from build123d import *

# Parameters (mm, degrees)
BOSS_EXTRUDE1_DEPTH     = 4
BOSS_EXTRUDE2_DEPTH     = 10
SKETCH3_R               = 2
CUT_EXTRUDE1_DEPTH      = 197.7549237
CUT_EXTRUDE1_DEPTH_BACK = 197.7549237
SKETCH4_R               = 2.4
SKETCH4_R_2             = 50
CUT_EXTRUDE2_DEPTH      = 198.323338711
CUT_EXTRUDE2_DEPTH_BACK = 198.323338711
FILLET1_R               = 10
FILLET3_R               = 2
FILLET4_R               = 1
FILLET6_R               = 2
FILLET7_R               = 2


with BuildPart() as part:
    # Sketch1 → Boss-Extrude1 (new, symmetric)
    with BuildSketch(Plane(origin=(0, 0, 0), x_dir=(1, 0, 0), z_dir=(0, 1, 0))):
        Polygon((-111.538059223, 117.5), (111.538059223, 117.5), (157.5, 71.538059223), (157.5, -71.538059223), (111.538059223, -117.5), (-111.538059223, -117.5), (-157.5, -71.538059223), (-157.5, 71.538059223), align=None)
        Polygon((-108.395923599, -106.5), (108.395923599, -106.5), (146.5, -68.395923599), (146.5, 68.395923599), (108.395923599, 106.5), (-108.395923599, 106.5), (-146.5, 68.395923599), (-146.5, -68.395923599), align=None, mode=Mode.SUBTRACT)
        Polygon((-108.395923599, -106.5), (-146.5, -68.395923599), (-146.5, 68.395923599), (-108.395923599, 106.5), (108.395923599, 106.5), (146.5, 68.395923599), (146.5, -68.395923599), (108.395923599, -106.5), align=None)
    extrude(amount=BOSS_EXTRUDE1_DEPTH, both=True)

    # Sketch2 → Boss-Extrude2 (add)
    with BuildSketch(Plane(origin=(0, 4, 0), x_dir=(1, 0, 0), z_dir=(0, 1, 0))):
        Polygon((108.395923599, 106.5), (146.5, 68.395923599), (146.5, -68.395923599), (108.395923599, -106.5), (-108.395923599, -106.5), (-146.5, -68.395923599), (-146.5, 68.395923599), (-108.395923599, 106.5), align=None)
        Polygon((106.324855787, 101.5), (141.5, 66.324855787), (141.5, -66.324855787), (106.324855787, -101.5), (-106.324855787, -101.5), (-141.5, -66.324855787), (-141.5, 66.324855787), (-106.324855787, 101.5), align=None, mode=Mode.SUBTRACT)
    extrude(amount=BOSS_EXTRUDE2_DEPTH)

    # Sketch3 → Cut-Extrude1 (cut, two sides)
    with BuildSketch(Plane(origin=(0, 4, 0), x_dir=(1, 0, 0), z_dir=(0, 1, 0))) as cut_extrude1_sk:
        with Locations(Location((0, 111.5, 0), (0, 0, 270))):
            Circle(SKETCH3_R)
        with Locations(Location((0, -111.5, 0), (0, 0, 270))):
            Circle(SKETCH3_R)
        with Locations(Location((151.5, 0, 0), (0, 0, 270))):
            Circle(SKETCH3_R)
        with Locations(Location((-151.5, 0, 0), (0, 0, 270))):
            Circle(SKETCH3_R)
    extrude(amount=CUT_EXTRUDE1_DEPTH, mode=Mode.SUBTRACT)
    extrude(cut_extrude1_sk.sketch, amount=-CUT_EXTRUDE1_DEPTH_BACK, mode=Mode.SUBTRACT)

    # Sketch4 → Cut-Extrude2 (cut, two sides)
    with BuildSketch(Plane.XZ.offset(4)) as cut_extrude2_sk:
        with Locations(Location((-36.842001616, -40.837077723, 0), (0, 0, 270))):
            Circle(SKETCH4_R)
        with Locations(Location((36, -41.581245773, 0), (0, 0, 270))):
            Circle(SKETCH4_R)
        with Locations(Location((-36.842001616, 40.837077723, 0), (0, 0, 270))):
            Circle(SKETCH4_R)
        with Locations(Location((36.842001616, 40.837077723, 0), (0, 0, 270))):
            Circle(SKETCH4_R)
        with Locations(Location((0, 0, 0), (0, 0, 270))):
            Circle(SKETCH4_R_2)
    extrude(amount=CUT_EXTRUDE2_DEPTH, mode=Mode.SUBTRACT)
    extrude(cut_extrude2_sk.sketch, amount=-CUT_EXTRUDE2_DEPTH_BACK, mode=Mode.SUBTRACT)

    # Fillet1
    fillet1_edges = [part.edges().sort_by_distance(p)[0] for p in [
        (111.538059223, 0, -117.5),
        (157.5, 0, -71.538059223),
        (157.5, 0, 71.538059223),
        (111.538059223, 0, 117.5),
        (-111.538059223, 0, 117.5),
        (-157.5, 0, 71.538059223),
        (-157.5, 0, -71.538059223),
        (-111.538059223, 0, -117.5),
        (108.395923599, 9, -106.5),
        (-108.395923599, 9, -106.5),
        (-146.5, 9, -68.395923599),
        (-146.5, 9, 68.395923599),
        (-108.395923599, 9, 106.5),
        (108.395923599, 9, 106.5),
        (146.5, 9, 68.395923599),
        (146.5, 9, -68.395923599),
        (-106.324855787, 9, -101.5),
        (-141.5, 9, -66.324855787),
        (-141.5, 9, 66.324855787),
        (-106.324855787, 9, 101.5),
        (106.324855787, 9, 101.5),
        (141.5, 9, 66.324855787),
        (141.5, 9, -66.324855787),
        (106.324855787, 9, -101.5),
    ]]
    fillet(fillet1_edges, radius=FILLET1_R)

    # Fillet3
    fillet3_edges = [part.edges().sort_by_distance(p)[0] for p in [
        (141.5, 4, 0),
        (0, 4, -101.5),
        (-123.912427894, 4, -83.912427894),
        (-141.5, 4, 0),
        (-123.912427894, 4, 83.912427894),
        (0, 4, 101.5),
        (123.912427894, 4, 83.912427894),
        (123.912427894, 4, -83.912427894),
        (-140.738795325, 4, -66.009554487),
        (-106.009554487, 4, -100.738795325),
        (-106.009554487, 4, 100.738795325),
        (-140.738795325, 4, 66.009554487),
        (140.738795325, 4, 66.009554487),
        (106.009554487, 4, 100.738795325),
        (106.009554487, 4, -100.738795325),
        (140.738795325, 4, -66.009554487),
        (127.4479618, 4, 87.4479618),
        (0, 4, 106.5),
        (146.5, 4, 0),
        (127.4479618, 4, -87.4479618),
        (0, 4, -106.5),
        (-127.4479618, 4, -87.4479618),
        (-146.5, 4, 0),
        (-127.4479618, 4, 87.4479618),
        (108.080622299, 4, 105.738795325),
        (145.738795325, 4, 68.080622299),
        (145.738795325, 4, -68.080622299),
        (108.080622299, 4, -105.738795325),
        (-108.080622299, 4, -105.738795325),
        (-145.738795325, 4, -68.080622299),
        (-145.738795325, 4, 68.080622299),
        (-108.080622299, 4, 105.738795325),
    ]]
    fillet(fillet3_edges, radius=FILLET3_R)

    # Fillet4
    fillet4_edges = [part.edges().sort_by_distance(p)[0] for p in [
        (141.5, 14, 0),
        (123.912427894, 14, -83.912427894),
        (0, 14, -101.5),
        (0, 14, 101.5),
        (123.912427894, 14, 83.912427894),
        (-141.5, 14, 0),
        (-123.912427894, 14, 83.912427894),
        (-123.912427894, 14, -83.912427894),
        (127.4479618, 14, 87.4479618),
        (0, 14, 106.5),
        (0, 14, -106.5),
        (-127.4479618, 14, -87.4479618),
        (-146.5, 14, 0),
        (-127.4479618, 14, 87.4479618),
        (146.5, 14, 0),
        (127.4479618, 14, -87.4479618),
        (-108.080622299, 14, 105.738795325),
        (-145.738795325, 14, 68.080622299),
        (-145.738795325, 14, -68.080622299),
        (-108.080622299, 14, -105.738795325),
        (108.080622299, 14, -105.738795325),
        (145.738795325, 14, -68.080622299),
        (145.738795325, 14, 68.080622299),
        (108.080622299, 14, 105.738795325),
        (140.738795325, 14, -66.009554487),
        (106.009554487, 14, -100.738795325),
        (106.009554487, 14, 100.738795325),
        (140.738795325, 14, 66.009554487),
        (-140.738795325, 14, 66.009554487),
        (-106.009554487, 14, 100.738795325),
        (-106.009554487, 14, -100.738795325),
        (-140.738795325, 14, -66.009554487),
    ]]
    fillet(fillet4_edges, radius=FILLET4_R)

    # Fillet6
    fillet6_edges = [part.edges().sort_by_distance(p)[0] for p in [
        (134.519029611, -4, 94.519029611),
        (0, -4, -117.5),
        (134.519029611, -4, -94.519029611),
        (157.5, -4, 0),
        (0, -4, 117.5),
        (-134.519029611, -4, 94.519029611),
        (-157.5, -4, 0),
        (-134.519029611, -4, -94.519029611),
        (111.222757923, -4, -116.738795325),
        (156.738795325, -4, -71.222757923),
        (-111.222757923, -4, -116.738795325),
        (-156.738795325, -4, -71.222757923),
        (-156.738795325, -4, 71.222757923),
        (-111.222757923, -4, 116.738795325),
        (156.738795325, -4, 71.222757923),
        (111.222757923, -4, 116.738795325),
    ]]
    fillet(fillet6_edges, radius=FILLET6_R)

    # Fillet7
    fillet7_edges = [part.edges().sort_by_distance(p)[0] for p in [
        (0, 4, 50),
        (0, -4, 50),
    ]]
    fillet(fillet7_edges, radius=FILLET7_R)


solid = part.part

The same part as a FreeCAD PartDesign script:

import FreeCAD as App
import Part
import Sketcher
from FreeCAD import Vector
Q = App.Units.Quantity


def edges_at(feature, points):
    """Names of the edges that pass closest to the given points."""
    edges = feature.Shape.Edges
    near = lambda p: min(range(len(edges)), key=lambda i: edges[i].distToShape(Part.Vertex(*p))[0])
    return sorted({f"Edge{near(p) + 1}" for p in points})


def add_polygon(sketch, points):
    """Adds a closed chain of lines whose ends are joined by coincident constraints."""
    first, n = sketch.GeometryCount, len(points)
    for a, b in zip(points, points[1:] + points[:1]):
        sketch.addGeometry(Part.LineSegment(App.Vector(*a, 0), App.Vector(*b, 0)), False)
    for i in range(n):
        sketch.addConstraint(Sketcher.Constraint("Coincident", first + i, 2, first + (i + 1) % n, 1))

doc = App.newDocument("Part")
body = doc.addObject("PartDesign::Body", "Body")

# Sketch on XZ plane
sketch1 = doc.addObject("Sketcher::SketchObject", "Sketch")
body.addObject(sketch1)
sketch1.AttachmentSupport = (doc.XZ_Plane, [""])
sketch1.MapMode = "FlatFace"
add_polygon(sketch1, [(112, -118), (-112, -118), (-158, -72), (-158, 72), (-112, 118), (112, 118), (158, 72), (158, -72)])  # lines 0-7
sketch1.addConstraint([
    Sketcher.Constraint("Horizontal", 0),
    Sketcher.Constraint("Vertical", 2),
    Sketcher.Constraint("Horizontal", 4),
    Sketcher.Constraint("Vertical", 6),
    Sketcher.Constraint("Symmetric", 0, 2, 4, 2, -1, 1),
    Sketcher.Constraint("Symmetric", 1, 2, 5, 2, -1, 1),
    Sketcher.Constraint("Perpendicular", 1, 3),
    Sketcher.Constraint("Perpendicular", 5, 7),
    Sketcher.Constraint("Horizontal", 2, 2, 5, 2),
    Sketcher.Constraint("Horizontal", 1, 2, 6, 2),
    Sketcher.Constraint("Vertical", 0, 2, 3, 2),
    Sketcher.Constraint("Distance", 1, Q("65 mm")),
    Sketcher.Constraint("DistanceY", 0, 2, 3, 2, Q("235 mm")),
    Sketcher.Constraint("DistanceX", 2, 2, 5, 2, Q("315 mm")),
])
pad1 = doc.addObject("PartDesign::Pad", "Pad")
body.addObject(pad1)
pad1.Profile = sketch1
pad1.Length = 8
pad1.Midplane = True

# Sketch on XZ plane
sketch2 = doc.addObject("Sketcher::SketchObject", "Sketch001")
body.addObject(sketch2)
sketch2.AttachmentSupport = (doc.XZ_Plane, [""])
sketch2.MapMode = "FlatFace"
sketch2.AttachmentOffset = App.Placement(Vector(0, 0, -4), App.Rotation())
add_polygon(sketch2, [(146, -68), (108, -106), (-108, -106), (-146, -68), (-146, 68), (-108, 106), (108, 106), (146, 68)])  # lines 0-7
add_polygon(sketch2, [(106, -102), (142, -66), (142, 66), (106, 102), (-106, 102), (-142, 66), (-142, -66), (-106, -102)])  # lines 8-15
sketch2.addConstraint([
    Sketcher.Constraint("Horizontal", 1),
    Sketcher.Constraint("Vertical", 3),
    Sketcher.Constraint("Horizontal", 5),
    Sketcher.Constraint("Vertical", 7),
    Sketcher.Constraint("Vertical", 9),
    Sketcher.Constraint("Horizontal", 11),
    Sketcher.Constraint("Vertical", 13),
    Sketcher.Constraint("Horizontal", 15),
    Sketcher.Constraint("Symmetric", 0, 2, 4, 2, -1, 1),
    Sketcher.Constraint("Symmetric", 2, 2, 6, 2, -1, 1),
    Sketcher.Constraint("Symmetric", 8, 2, 12, 2, -1, 1),
    Sketcher.Constraint("Symmetric", 10, 2, 14, 2, -1, 1),
    Sketcher.Constraint("Perpendicular", 0, 2),
    Sketcher.Constraint("Perpendicular", 2, 4),
    Sketcher.Constraint("Perpendicular", 4, 6),
    Sketcher.Constraint("Perpendicular", 6, 8),
    Sketcher.Constraint("Perpendicular", 8, 10),
    Sketcher.Constraint("Perpendicular", 10, 12),
    Sketcher.Constraint("Perpendicular", 12, 14),
    Sketcher.Constraint("Horizontal", 3, 2, 6, 2),
    Sketcher.Constraint("Horizontal", 9, 2, 12, 2),
    Sketcher.Constraint("Vertical", 1, 2, 4, 2),
    Sketcher.Constraint("DistanceY", 1, 2, 4, 2, Q("213 mm")),
    Sketcher.Constraint("DistanceX", 3, 2, 6, 2, Q("293 mm")),
    Sketcher.Constraint("DistanceX", 8, 2, 7, 2, Q("5 mm")),
    Sketcher.Constraint("DistanceY", 10, 2, 5, 2, Q("5 mm")),
    Sketcher.Constraint("Distance", 0, Q("53.887302 mm")),
    Sketcher.Constraint("DistanceX", 11, 2, 11, 1, Q("212.649712 mm")),
])
pad2 = doc.addObject("PartDesign::Pad", "Pad001")
body.addObject(pad2)
pad2.Profile = sketch2
pad2.Length = 10
pad2.Reversed = True

# Sketch on XZ plane
sketch3 = doc.addObject("Sketcher::SketchObject", "Sketch002")
body.addObject(sketch3)
sketch3.AttachmentSupport = (doc.XZ_Plane, [""])
sketch3.MapMode = "FlatFace"
sketch3.AttachmentOffset = App.Placement(Vector(0, 0, -4), App.Rotation())
sketch3.addGeometry([
    Part.Circle(Vector(0, -111.5, 0), Vector(0, 0, 1), 2),
    Part.Circle(Vector(0, 111.5, 0), Vector(0, 0, 1), 2),
    Part.Circle(Vector(151.5, 0, 0), Vector(0, 0, 1), 2),
    Part.Circle(Vector(-151.5, 0, 0), Vector(0, 0, 1), 2),
], False)
sketch3.addConstraint([
    Sketcher.Constraint("Equal", 0, 1),
    Sketcher.Constraint("Equal", 1, 2),
    Sketcher.Constraint("Equal", 2, 3),
    Sketcher.Constraint("Symmetric", 0, 3, 1, 3, -1, 1),
    Sketcher.Constraint("Symmetric", 2, 3, 3, 3, -1, 1),
    Sketcher.Constraint("PointOnObject", 0, 3, -2),
    Sketcher.Constraint("PointOnObject", 2, 3, -1),
    Sketcher.Constraint("Diameter", 0, Q("4 mm")),
    Sketcher.Constraint("DistanceY", 0, 3, 1, 3, Q("223 mm")),
    Sketcher.Constraint("DistanceX", 3, 3, 2, 3, Q("303 mm")),
])
pocket1 = doc.addObject("PartDesign::Pocket", "Pocket")
body.addObject(pocket1)
pocket1.Profile = sketch3
pocket1.Type = "ThroughAll"
pocket1.Midplane = True

# Sketch on XZ plane
sketch4 = doc.addObject("Sketcher::SketchObject", "Sketch003")
body.addObject(sketch4)
sketch4.AttachmentSupport = (doc.XZ_Plane, [""])
sketch4.MapMode = "FlatFace"
sketch4.AttachmentOffset = App.Placement(Vector(0, 0, 4), App.Rotation())
sketch4.addGeometry([
    Part.Circle(Vector(-36.8, -40.8, 0), Vector(0, 0, 1), 2.4),  # 0
    Part.Circle(Vector(36, -41.6, 0), Vector(0, 0, 1), 2.4),  # 1
    Part.Circle(Vector(-36.8, 40.8, 0), Vector(0, 0, 1), 2.4),  # 2
    Part.Circle(Vector(36.8, 40.8, 0), Vector(0, 0, 1), 2.4),  # 3
    Part.Circle(Vector(0, 0, 0), Vector(0, 0, 1), 50),  # 4
], False)
sketch4.addConstraint([
    Sketcher.Constraint("Coincident", 4, 3, -1, 1),
    Sketcher.Constraint("Equal", 0, 1),
    Sketcher.Constraint("Equal", 1, 2),
    Sketcher.Constraint("Equal", 2, 3),
    Sketcher.Constraint("Symmetric", 0, 3, 3, 3, -1, 1),
    Sketcher.Constraint("Symmetric", 2, 3, 3, 3, -2),
    Sketcher.Constraint("Diameter", 4, Q("100 mm")),
    Sketcher.Constraint("Diameter", 0, Q("4.8 mm")),
    Sketcher.Constraint("DistanceX", -1, 1, 1, 3, Q("36 mm")),
    Sketcher.Constraint("DistanceX", 0, 3, -1, 1, Q("36.842002 mm")),
    Sketcher.Constraint("DistanceY", 1, 3, 0, 3, Q("0.744168 mm")),
    Sketcher.Constraint("DistanceY", 0, 3, -1, 1, Q("40.837078 mm")),
])
pocket2 = doc.addObject("PartDesign::Pocket", "Pocket001")
body.addObject(pocket2)
pocket2.Profile = sketch4
pocket2.Type = "ThroughAll"
pocket2.Midplane = True
doc.recompute()

fillet = doc.addObject("PartDesign::Fillet", "Fillet")
body.addObject(fillet)
fillet.Base = (pocket2, edges_at(pocket2, [
    (111.538, 0, -117.5),
    (157.5, 0, -71.538),
    (157.5, 0, 71.538),
    (111.538, 0, 117.5),
    (-111.538, 0, 117.5),
    (-157.5, 0, 71.538),
    (-157.5, 0, -71.538),
    (-111.538, 0, -117.5),
    (108.396, 9, -106.5),
    (-108.396, 9, -106.5),
    (-146.5, 9, -68.396),
    (-146.5, 9, 68.396),
    (-108.396, 9, 106.5),
    (108.396, 9, 106.5),
    (146.5, 9, 68.396),
    (146.5, 9, -68.396),
    (-106.325, 9, -101.5),
    (-141.5, 9, -66.325),
    (-141.5, 9, 66.325),
    (-106.325, 9, 101.5),
    (106.325, 9, 101.5),
    (141.5, 9, 66.325),
    (141.5, 9, -66.325),
    (106.325, 9, -101.5),
]))
fillet.Radius = 10
doc.recompute()

fillet2 = doc.addObject("PartDesign::Fillet", "Fillet001")
body.addObject(fillet2)
fillet2.Base = (fillet, edges_at(fillet, [
    (141.5, 4, 0),
    (0, 4, -101.5),
    (-123.912, 4, -83.912),
    (-141.5, 4, 0),
    (-123.912, 4, 83.912),
    (0, 4, 101.5),
    (123.912, 4, 83.912),
    (123.912, 4, -83.912),
    (-140.739, 4, -66.01),
    (-106.01, 4, -100.739),
    (-106.01, 4, 100.739),
    (-140.739, 4, 66.01),
    (140.739, 4, 66.01),
    (106.01, 4, 100.739),
    (106.01, 4, -100.739),
    (140.739, 4, -66.01),
    (127.448, 4, 87.448),
    (0, 4, 106.5),
    (146.5, 4, 0),
    (127.448, 4, -87.448),
    (0, 4, -106.5),
    (-127.448, 4, -87.448),
    (-146.5, 4, 0),
    (-127.448, 4, 87.448),
    (108.081, 4, 105.739),
    (145.739, 4, 68.081),
    (145.739, 4, -68.081),
    (108.081, 4, -105.739),
    (-108.081, 4, -105.739),
    (-145.739, 4, -68.081),
    (-145.739, 4, 68.081),
    (-108.081, 4, 105.739),
]))
fillet2.Radius = 2
doc.recompute()

fillet3 = doc.addObject("PartDesign::Fillet", "Fillet002")
body.addObject(fillet3)
fillet3.Base = (fillet2, edges_at(fillet2, [
    (141.5, 14, 0),
    (123.912, 14, -83.912),
    (0, 14, -101.5),
    (0, 14, 101.5),
    (123.912, 14, 83.912),
    (-141.5, 14, 0),
    (-123.912, 14, 83.912),
    (-123.912, 14, -83.912),
    (127.448, 14, 87.448),
    (0, 14, 106.5),
    (0, 14, -106.5),
    (-127.448, 14, -87.448),
    (-146.5, 14, 0),
    (-127.448, 14, 87.448),
    (146.5, 14, 0),
    (127.448, 14, -87.448),
    (-108.081, 14, 105.739),
    (-145.739, 14, 68.081),
    (-145.739, 14, -68.081),
    (-108.081, 14, -105.739),
    (108.081, 14, -105.739),
    (145.739, 14, -68.081),
    (145.739, 14, 68.081),
    (108.081, 14, 105.739),
    (140.739, 14, -66.01),
    (106.01, 14, -100.739),
    (106.01, 14, 100.739),
    (140.739, 14, 66.01),
    (-140.739, 14, 66.01),
    (-106.01, 14, 100.739),
    (-106.01, 14, -100.739),
    (-140.739, 14, -66.01),
]))
fillet3.Radius = 1
doc.recompute()

fillet4 = doc.addObject("PartDesign::Fillet", "Fillet003")
body.addObject(fillet4)
fillet4.Base = (fillet3, edges_at(fillet3, [
    (134.519, -4, 94.519),
    (0, -4, -117.5),
    (134.519, -4, -94.519),
    (157.5, -4, 0),
    (0, -4, 117.5),
    (-134.519, -4, 94.519),
    (-157.5, -4, 0),
    (-134.519, -4, -94.519),
    (111.223, -4, -116.739),
    (156.739, -4, -71.223),
    (-111.223, -4, -116.739),
    (-156.739, -4, -71.223),
    (-156.739, -4, 71.223),
    (-111.223, -4, 116.739),
    (156.739, -4, 71.223),
    (111.223, -4, 116.739),
]))
fillet4.Radius = 2
doc.recompute()

fillet5 = doc.addObject("PartDesign::Fillet", "Fillet004")
body.addObject(fillet5)
fillet5.Base = (fillet4, edges_at(fillet4, [(0, 4, 50), (0, -4, 50)]))
fillet5.Radius = 2

doc.recompute()
